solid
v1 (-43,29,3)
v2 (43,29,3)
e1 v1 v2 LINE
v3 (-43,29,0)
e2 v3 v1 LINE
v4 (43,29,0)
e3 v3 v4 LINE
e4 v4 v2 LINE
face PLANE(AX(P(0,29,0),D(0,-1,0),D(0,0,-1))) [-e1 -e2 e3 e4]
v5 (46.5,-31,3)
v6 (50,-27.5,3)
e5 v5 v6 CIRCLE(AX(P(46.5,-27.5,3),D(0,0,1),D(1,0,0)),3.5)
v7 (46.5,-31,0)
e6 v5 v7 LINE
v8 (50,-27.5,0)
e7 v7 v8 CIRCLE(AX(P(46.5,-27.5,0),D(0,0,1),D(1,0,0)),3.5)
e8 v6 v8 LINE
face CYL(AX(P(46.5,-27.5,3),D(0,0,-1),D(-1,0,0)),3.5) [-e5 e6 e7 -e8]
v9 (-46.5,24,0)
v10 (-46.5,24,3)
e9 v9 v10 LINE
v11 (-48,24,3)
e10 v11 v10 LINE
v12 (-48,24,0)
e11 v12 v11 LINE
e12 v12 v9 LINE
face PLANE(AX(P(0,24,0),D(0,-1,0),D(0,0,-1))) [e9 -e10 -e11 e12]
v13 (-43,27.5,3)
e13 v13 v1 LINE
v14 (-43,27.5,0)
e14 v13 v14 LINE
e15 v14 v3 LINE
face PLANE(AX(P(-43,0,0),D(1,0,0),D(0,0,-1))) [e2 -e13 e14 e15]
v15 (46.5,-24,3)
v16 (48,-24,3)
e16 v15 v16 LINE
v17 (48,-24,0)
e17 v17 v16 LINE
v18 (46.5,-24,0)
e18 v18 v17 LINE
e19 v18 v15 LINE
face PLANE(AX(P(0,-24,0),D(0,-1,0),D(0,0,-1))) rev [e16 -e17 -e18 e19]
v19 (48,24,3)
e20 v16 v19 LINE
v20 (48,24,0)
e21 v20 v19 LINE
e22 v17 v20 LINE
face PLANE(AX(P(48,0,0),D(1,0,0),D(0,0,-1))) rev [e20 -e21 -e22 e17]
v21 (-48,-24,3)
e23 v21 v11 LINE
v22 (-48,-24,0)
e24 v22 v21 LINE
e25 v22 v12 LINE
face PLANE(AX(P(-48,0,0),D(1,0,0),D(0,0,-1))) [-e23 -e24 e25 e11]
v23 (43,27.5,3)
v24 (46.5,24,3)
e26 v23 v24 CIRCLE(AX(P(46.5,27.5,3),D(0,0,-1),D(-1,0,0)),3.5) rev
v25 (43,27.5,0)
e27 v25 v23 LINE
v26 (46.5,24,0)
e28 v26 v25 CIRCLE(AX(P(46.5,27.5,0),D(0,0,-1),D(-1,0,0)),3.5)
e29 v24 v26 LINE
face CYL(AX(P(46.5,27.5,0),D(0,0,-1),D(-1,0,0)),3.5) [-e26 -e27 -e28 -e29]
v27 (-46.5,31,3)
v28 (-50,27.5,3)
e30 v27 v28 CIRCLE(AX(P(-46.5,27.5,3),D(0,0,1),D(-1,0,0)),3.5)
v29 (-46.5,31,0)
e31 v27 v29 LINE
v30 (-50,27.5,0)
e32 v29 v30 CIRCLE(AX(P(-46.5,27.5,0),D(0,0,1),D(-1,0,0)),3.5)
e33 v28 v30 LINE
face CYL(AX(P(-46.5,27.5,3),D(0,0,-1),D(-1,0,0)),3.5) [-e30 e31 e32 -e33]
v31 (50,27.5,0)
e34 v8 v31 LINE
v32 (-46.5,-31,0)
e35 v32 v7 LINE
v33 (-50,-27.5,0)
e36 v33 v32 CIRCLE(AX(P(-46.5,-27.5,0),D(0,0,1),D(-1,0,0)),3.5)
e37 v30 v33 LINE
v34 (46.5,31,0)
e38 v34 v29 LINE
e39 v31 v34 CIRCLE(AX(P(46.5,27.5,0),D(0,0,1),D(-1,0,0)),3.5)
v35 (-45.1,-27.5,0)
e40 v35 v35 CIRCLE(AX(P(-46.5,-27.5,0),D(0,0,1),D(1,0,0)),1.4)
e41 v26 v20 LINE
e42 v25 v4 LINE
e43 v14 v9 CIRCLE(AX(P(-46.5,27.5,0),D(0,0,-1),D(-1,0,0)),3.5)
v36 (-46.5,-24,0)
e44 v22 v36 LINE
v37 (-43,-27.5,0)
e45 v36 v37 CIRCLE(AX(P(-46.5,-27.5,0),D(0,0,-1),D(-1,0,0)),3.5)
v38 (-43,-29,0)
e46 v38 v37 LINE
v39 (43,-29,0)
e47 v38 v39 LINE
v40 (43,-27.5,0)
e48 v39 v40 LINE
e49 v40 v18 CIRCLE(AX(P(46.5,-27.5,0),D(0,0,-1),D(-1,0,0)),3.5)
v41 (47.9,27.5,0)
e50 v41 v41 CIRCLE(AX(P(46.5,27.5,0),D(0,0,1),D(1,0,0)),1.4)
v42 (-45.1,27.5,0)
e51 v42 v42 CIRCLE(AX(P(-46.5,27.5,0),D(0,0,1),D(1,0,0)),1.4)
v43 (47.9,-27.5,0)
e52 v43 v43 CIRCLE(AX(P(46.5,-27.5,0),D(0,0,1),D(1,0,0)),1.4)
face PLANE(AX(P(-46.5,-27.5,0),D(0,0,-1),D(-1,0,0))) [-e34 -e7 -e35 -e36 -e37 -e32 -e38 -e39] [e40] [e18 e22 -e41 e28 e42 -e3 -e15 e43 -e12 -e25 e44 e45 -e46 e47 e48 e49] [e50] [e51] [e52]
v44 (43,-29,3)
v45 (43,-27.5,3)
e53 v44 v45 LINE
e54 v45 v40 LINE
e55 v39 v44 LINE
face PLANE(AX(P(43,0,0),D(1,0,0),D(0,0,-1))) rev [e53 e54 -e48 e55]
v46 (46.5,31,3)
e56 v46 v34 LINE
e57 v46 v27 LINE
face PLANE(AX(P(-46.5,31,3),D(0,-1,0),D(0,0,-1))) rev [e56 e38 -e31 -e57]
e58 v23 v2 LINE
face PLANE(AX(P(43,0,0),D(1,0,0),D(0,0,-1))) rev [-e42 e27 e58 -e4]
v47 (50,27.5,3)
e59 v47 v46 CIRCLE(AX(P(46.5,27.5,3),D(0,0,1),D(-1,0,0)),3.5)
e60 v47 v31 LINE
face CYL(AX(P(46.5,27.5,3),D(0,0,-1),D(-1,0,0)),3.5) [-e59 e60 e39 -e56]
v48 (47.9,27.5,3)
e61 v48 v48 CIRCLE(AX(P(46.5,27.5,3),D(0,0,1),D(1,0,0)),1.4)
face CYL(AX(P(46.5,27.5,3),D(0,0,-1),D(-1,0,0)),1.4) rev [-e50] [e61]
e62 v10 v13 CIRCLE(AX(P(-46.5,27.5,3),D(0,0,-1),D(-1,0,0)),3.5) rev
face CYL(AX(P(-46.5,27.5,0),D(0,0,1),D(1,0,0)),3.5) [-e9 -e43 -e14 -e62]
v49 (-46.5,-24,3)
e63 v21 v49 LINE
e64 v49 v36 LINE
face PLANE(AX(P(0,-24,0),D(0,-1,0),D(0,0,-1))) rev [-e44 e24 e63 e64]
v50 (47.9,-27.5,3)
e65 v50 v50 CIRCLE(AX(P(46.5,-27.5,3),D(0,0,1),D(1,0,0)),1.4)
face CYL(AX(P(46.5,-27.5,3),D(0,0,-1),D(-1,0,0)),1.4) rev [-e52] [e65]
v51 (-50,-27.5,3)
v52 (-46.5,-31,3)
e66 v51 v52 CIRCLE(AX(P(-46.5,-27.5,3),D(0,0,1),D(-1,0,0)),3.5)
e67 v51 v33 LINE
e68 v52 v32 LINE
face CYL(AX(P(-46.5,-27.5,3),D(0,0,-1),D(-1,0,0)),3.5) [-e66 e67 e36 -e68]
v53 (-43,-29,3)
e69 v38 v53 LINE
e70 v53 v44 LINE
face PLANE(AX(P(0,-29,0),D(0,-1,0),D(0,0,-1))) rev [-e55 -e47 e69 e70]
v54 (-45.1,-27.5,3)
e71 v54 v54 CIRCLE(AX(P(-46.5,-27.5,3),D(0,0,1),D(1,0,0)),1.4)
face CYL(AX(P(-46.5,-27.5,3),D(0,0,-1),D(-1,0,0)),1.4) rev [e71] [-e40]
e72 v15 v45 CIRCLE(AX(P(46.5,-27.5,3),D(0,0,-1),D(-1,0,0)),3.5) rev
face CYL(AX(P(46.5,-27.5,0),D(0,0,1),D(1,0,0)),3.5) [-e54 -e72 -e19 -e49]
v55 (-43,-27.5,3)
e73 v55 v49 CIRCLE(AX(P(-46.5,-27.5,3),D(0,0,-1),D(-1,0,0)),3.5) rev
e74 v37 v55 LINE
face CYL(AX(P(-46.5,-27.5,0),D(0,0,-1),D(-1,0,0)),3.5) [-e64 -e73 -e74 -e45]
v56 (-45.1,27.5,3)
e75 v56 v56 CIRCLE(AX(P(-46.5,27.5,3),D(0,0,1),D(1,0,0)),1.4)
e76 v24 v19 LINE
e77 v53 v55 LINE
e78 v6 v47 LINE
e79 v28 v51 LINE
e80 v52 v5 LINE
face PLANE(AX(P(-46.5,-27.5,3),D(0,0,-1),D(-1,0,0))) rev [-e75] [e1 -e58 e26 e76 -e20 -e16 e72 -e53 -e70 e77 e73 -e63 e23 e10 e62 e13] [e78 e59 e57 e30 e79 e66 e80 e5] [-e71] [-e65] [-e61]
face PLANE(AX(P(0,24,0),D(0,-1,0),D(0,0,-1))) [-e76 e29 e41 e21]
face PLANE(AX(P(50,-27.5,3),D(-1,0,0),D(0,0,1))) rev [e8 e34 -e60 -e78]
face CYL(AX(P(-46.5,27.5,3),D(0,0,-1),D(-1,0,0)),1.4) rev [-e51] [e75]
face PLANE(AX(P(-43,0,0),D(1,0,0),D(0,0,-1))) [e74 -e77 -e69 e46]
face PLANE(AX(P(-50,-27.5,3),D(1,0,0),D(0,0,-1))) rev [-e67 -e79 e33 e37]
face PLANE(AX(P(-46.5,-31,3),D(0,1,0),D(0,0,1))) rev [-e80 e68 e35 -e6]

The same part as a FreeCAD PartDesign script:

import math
import FreeCAD as App
import Part
import Sketcher

V = App.Vector
Q = App.Units.Quantity


def edges_at(feature, points):
    """Names of the edges that pass closest to the given points."""
    edges = feature.Shape.Edges
    near = lambda p: min(range(len(edges)), key=lambda i: edges[i].distToShape(Part.Vertex(*p))[0])
    return sorted({f"Edge{near(p) + 1}" for p in points})


def add_polygon(sketch, points):
    """Adds a closed chain of lines whose ends are joined by coincident constraints."""
    first, n = sketch.GeometryCount, len(points)
    for a, b in zip(points, points[1:] + points[:1]):
        sketch.addGeometry(Part.LineSegment(App.Vector(*a, 0), App.Vector(*b, 0)), False)
    for i in range(n):
        sketch.addConstraint(Sketcher.Constraint("Coincident", first + i, 2, first + (i + 1) % n, 1))

doc = App.newDocument("Part")
body = doc.addObject("PartDesign::Body", "Body")

# Sketch on XY plane
sketch1 = body.newObject("Sketcher::SketchObject", "Sketch")
sketch1.AttachmentSupport = (doc.getObject("XY_Plane"), [""])
sketch1.MapMode = "FlatFace"
sketch1.addGeometry(Part.LineSegment(V(-46.5, -31, 0), V(46.5, -31, 0)), False)
sketch1.addGeometry(Part.ArcOfCircle(Part.Circle(V(46.5, -27.5, 0), V(0, 0, 1), 3.5), math.radians(-90), math.radians(0)), False)
sketch1.addGeometry(Part.LineSegment(V(50, -27.5, 0), V(50, 27.5, 0)), False)
sketch1.addGeometry(Part.ArcOfCircle(Part.Circle(V(46.5, 27.5, 0), V(0, 0, 1), 3.5), math.radians(0), math.radians(90)), False)
sketch1.addGeometry(Part.LineSegment(V(46.5, 31, 0), V(-46.5, 31, 0)), False)
sketch1.addGeometry(Part.ArcOfCircle(Part.Circle(V(-46.5, 27.5, 0), V(0, 0, 1), 3.5), math.radians(90), math.radians(180)), False)
sketch1.addGeometry(Part.LineSegment(V(-50, 27.5, 0), V(-50, -27.5, 0)), False)
sketch1.addGeometry(Part.ArcOfCircle(Part.Circle(V(-46.5, -27.5, 0), V(0, 0, 1), 3.5), math.radians(-180), math.radians(-90)), False)
sketch1.addGeometry(Part.Circle(V(-46.5, -27.5, 0), V(0, 0, 1), 1.4), False)
sketch1.addGeometry(Part.Circle(V(46.5, -27.5, 0), V(0, 0, 1), 1.4), False)
sketch1.addGeometry(Part.Circle(V(-46.5, 27.5, 0), V(0, 0, 1), 1.4), False)
sketch1.addGeometry(Part.Circle(V(46.5, 27.5, 0), V(0, 0, 1), 1.4), False)
sketch1.addConstraint(Sketcher.Constraint("Tangent", 0, 2, 1, 1))
sketch1.addConstraint(Sketcher.Constraint("Tangent", 1, 2, 2, 1))
sketch1.addConstraint(Sketcher.Constraint("Tangent", 2, 2, 3, 1))
sketch1.addConstraint(Sketcher.Constraint("Tangent", 3, 2, 4, 1))
sketch1.addConstraint(Sketcher.Constraint("Tangent", 4, 2, 5, 1))
sketch1.addConstraint(Sketcher.Constraint("Tangent", 5, 2, 6, 1))
sketch1.addConstraint(Sketcher.Constraint("Tangent", 6, 2, 7, 1))
sketch1.addConstraint(Sketcher.Constraint("Tangent", 7, 2, 0, 1))
sketch1.addConstraint(Sketcher.Constraint("Horizontal", 0))
sketch1.addConstraint(Sketcher.Constraint("Vertical", 2))
sketch1.addConstraint(Sketcher.Constraint("Horizontal", 4))
sketch1.addConstraint(Sketcher.Constraint("Vertical", 6))
sketch1.addConstraint(Sketcher.Constraint("Coincident", 8, 3, 7, 3))
sketch1.addConstraint(Sketcher.Constraint("Coincident", 9, 3, 1, 3))
sketch1.addConstraint(Sketcher.Constraint("Coincident", 10, 3, 5, 3))
sketch1.addConstraint(Sketcher.Constraint("Coincident", 11, 3, 3, 3))
sketch1.addConstraint(Sketcher.Constraint("Equal", 1, 3))
sketch1.addConstraint(Sketcher.Constraint("Equal", 3, 5))
sketch1.addConstraint(Sketcher.Constraint("Equal", 5, 7))
sketch1.addConstraint(Sketcher.Constraint("Equal", 8, 9))
sketch1.addConstraint(Sketcher.Constraint("Equal", 9, 10))
sketch1.addConstraint(Sketcher.Constraint("Equal", 10, 11))
sketch1.addConstraint(Sketcher.Constraint("Symmetric", 1, 3, 5, 3, -1, 1))
sketch1.addConstraint(Sketcher.Constraint("Diameter", 8, Q("2.8 mm")))
sketch1.addConstraint(Sketcher.Constraint("Radius", 1, Q("3.5 mm")))
sketch1.addConstraint(Sketcher.Constraint("DistanceX", 0, 1, 0, 2, Q("93 mm")))
sketch1.addConstraint(Sketcher.Constraint("DistanceY", 2, 1, 2, 2, Q("55 mm")))
pad1 = body.newObject("PartDesign::Pad", "Pad")
pad1.Profile = sketch1
pad1.Length = 3

# Sketch on XY plane
sketch2 = body.newObject("Sketcher::SketchObject", "Sketch001")
sketch2.AttachmentSupport = (doc.getObject("XY_Plane"), [""])
sketch2.MapMode = "FlatFace"
sketch2.AttachmentOffset = App.Placement(V(0, 0, 3), App.Rotation())
add_polygon(sketch2, [(-48, 24), (-48, -24), (-43, -24), (-43, -29), (43, -29), (43, -24), (48, -24), (48, 24), (43, 24), (43, 29), (-43, 29), (-43, 24)])  # lines 0-11
sketch2.addConstraint(Sketcher.Constraint("Vertical", 0))
sketch2.addConstraint(Sketcher.Constraint("Horizontal", 1))
sketch2.addConstraint(Sketcher.Constraint("Vertical", 2))
sketch2.addConstraint(Sketcher.Constraint("Horizontal", 3))
sketch2.addConstraint(Sketcher.Constraint("Vertical", 4))
sketch2.addConstraint(Sketcher.Constraint("Horizontal", 5))
sketch2.addConstraint(Sketcher.Constraint("Vertical", 6))
sketch2.addConstraint(Sketcher.Constraint("Horizontal", 7))
sketch2.addConstraint(Sketcher.Constraint("Vertical", 8))
sketch2.addConstraint(Sketcher.Constraint("Horizontal", 9))
sketch2.addConstraint(Sketcher.Constraint("Vertical", 10))
sketch2.addConstraint(Sketcher.Constraint("Horizontal", 11))
sketch2.addConstraint(Sketcher.Constraint("Symmetric", 0, 2, 6, 2, -1, 1))
sketch2.addConstraint(Sketcher.Constraint("Symmetric", 2, 2, 8, 2, -1, 1))
sketch2.addConstraint(Sketcher.Constraint("Symmetric", 4, 2, 10, 2, -1, 1))
sketch2.addConstraint(Sketcher.Constraint("Symmetric", 1, 2, 4, 2, -2))
sketch2.addConstraint(Sketcher.Constraint("Equal", 11, 2))
sketch2.addConstraint(Sketcher.Constraint("DistanceX", 1, 1, 1, 2, Q("5 mm")))
sketch2.addConstraint(Sketcher.Constraint("DistanceX", 3, 1, 3, 2, Q("86 mm")))
sketch2.addConstraint(Sketcher.Constraint("DistanceY", 0, 2, 0, 1, Q("48 mm")))
pocket1 = body.newObject("PartDesign::Pocket", "Pocket")
pocket1.Profile = sketch2
pocket1.Length = 3
doc.recompute()

fillet = body.newObject("PartDesign::Fillet", "Fillet")
fillet.Base = (pocket1, edges_at(pocket1, [
    (-43, 24, 1.5),
    (43, 24, 1.5),
    (43, -24, 1.5),
    (-43, -24, 1.5),
]))
fillet.Radius = 3.5

doc.recompute()
